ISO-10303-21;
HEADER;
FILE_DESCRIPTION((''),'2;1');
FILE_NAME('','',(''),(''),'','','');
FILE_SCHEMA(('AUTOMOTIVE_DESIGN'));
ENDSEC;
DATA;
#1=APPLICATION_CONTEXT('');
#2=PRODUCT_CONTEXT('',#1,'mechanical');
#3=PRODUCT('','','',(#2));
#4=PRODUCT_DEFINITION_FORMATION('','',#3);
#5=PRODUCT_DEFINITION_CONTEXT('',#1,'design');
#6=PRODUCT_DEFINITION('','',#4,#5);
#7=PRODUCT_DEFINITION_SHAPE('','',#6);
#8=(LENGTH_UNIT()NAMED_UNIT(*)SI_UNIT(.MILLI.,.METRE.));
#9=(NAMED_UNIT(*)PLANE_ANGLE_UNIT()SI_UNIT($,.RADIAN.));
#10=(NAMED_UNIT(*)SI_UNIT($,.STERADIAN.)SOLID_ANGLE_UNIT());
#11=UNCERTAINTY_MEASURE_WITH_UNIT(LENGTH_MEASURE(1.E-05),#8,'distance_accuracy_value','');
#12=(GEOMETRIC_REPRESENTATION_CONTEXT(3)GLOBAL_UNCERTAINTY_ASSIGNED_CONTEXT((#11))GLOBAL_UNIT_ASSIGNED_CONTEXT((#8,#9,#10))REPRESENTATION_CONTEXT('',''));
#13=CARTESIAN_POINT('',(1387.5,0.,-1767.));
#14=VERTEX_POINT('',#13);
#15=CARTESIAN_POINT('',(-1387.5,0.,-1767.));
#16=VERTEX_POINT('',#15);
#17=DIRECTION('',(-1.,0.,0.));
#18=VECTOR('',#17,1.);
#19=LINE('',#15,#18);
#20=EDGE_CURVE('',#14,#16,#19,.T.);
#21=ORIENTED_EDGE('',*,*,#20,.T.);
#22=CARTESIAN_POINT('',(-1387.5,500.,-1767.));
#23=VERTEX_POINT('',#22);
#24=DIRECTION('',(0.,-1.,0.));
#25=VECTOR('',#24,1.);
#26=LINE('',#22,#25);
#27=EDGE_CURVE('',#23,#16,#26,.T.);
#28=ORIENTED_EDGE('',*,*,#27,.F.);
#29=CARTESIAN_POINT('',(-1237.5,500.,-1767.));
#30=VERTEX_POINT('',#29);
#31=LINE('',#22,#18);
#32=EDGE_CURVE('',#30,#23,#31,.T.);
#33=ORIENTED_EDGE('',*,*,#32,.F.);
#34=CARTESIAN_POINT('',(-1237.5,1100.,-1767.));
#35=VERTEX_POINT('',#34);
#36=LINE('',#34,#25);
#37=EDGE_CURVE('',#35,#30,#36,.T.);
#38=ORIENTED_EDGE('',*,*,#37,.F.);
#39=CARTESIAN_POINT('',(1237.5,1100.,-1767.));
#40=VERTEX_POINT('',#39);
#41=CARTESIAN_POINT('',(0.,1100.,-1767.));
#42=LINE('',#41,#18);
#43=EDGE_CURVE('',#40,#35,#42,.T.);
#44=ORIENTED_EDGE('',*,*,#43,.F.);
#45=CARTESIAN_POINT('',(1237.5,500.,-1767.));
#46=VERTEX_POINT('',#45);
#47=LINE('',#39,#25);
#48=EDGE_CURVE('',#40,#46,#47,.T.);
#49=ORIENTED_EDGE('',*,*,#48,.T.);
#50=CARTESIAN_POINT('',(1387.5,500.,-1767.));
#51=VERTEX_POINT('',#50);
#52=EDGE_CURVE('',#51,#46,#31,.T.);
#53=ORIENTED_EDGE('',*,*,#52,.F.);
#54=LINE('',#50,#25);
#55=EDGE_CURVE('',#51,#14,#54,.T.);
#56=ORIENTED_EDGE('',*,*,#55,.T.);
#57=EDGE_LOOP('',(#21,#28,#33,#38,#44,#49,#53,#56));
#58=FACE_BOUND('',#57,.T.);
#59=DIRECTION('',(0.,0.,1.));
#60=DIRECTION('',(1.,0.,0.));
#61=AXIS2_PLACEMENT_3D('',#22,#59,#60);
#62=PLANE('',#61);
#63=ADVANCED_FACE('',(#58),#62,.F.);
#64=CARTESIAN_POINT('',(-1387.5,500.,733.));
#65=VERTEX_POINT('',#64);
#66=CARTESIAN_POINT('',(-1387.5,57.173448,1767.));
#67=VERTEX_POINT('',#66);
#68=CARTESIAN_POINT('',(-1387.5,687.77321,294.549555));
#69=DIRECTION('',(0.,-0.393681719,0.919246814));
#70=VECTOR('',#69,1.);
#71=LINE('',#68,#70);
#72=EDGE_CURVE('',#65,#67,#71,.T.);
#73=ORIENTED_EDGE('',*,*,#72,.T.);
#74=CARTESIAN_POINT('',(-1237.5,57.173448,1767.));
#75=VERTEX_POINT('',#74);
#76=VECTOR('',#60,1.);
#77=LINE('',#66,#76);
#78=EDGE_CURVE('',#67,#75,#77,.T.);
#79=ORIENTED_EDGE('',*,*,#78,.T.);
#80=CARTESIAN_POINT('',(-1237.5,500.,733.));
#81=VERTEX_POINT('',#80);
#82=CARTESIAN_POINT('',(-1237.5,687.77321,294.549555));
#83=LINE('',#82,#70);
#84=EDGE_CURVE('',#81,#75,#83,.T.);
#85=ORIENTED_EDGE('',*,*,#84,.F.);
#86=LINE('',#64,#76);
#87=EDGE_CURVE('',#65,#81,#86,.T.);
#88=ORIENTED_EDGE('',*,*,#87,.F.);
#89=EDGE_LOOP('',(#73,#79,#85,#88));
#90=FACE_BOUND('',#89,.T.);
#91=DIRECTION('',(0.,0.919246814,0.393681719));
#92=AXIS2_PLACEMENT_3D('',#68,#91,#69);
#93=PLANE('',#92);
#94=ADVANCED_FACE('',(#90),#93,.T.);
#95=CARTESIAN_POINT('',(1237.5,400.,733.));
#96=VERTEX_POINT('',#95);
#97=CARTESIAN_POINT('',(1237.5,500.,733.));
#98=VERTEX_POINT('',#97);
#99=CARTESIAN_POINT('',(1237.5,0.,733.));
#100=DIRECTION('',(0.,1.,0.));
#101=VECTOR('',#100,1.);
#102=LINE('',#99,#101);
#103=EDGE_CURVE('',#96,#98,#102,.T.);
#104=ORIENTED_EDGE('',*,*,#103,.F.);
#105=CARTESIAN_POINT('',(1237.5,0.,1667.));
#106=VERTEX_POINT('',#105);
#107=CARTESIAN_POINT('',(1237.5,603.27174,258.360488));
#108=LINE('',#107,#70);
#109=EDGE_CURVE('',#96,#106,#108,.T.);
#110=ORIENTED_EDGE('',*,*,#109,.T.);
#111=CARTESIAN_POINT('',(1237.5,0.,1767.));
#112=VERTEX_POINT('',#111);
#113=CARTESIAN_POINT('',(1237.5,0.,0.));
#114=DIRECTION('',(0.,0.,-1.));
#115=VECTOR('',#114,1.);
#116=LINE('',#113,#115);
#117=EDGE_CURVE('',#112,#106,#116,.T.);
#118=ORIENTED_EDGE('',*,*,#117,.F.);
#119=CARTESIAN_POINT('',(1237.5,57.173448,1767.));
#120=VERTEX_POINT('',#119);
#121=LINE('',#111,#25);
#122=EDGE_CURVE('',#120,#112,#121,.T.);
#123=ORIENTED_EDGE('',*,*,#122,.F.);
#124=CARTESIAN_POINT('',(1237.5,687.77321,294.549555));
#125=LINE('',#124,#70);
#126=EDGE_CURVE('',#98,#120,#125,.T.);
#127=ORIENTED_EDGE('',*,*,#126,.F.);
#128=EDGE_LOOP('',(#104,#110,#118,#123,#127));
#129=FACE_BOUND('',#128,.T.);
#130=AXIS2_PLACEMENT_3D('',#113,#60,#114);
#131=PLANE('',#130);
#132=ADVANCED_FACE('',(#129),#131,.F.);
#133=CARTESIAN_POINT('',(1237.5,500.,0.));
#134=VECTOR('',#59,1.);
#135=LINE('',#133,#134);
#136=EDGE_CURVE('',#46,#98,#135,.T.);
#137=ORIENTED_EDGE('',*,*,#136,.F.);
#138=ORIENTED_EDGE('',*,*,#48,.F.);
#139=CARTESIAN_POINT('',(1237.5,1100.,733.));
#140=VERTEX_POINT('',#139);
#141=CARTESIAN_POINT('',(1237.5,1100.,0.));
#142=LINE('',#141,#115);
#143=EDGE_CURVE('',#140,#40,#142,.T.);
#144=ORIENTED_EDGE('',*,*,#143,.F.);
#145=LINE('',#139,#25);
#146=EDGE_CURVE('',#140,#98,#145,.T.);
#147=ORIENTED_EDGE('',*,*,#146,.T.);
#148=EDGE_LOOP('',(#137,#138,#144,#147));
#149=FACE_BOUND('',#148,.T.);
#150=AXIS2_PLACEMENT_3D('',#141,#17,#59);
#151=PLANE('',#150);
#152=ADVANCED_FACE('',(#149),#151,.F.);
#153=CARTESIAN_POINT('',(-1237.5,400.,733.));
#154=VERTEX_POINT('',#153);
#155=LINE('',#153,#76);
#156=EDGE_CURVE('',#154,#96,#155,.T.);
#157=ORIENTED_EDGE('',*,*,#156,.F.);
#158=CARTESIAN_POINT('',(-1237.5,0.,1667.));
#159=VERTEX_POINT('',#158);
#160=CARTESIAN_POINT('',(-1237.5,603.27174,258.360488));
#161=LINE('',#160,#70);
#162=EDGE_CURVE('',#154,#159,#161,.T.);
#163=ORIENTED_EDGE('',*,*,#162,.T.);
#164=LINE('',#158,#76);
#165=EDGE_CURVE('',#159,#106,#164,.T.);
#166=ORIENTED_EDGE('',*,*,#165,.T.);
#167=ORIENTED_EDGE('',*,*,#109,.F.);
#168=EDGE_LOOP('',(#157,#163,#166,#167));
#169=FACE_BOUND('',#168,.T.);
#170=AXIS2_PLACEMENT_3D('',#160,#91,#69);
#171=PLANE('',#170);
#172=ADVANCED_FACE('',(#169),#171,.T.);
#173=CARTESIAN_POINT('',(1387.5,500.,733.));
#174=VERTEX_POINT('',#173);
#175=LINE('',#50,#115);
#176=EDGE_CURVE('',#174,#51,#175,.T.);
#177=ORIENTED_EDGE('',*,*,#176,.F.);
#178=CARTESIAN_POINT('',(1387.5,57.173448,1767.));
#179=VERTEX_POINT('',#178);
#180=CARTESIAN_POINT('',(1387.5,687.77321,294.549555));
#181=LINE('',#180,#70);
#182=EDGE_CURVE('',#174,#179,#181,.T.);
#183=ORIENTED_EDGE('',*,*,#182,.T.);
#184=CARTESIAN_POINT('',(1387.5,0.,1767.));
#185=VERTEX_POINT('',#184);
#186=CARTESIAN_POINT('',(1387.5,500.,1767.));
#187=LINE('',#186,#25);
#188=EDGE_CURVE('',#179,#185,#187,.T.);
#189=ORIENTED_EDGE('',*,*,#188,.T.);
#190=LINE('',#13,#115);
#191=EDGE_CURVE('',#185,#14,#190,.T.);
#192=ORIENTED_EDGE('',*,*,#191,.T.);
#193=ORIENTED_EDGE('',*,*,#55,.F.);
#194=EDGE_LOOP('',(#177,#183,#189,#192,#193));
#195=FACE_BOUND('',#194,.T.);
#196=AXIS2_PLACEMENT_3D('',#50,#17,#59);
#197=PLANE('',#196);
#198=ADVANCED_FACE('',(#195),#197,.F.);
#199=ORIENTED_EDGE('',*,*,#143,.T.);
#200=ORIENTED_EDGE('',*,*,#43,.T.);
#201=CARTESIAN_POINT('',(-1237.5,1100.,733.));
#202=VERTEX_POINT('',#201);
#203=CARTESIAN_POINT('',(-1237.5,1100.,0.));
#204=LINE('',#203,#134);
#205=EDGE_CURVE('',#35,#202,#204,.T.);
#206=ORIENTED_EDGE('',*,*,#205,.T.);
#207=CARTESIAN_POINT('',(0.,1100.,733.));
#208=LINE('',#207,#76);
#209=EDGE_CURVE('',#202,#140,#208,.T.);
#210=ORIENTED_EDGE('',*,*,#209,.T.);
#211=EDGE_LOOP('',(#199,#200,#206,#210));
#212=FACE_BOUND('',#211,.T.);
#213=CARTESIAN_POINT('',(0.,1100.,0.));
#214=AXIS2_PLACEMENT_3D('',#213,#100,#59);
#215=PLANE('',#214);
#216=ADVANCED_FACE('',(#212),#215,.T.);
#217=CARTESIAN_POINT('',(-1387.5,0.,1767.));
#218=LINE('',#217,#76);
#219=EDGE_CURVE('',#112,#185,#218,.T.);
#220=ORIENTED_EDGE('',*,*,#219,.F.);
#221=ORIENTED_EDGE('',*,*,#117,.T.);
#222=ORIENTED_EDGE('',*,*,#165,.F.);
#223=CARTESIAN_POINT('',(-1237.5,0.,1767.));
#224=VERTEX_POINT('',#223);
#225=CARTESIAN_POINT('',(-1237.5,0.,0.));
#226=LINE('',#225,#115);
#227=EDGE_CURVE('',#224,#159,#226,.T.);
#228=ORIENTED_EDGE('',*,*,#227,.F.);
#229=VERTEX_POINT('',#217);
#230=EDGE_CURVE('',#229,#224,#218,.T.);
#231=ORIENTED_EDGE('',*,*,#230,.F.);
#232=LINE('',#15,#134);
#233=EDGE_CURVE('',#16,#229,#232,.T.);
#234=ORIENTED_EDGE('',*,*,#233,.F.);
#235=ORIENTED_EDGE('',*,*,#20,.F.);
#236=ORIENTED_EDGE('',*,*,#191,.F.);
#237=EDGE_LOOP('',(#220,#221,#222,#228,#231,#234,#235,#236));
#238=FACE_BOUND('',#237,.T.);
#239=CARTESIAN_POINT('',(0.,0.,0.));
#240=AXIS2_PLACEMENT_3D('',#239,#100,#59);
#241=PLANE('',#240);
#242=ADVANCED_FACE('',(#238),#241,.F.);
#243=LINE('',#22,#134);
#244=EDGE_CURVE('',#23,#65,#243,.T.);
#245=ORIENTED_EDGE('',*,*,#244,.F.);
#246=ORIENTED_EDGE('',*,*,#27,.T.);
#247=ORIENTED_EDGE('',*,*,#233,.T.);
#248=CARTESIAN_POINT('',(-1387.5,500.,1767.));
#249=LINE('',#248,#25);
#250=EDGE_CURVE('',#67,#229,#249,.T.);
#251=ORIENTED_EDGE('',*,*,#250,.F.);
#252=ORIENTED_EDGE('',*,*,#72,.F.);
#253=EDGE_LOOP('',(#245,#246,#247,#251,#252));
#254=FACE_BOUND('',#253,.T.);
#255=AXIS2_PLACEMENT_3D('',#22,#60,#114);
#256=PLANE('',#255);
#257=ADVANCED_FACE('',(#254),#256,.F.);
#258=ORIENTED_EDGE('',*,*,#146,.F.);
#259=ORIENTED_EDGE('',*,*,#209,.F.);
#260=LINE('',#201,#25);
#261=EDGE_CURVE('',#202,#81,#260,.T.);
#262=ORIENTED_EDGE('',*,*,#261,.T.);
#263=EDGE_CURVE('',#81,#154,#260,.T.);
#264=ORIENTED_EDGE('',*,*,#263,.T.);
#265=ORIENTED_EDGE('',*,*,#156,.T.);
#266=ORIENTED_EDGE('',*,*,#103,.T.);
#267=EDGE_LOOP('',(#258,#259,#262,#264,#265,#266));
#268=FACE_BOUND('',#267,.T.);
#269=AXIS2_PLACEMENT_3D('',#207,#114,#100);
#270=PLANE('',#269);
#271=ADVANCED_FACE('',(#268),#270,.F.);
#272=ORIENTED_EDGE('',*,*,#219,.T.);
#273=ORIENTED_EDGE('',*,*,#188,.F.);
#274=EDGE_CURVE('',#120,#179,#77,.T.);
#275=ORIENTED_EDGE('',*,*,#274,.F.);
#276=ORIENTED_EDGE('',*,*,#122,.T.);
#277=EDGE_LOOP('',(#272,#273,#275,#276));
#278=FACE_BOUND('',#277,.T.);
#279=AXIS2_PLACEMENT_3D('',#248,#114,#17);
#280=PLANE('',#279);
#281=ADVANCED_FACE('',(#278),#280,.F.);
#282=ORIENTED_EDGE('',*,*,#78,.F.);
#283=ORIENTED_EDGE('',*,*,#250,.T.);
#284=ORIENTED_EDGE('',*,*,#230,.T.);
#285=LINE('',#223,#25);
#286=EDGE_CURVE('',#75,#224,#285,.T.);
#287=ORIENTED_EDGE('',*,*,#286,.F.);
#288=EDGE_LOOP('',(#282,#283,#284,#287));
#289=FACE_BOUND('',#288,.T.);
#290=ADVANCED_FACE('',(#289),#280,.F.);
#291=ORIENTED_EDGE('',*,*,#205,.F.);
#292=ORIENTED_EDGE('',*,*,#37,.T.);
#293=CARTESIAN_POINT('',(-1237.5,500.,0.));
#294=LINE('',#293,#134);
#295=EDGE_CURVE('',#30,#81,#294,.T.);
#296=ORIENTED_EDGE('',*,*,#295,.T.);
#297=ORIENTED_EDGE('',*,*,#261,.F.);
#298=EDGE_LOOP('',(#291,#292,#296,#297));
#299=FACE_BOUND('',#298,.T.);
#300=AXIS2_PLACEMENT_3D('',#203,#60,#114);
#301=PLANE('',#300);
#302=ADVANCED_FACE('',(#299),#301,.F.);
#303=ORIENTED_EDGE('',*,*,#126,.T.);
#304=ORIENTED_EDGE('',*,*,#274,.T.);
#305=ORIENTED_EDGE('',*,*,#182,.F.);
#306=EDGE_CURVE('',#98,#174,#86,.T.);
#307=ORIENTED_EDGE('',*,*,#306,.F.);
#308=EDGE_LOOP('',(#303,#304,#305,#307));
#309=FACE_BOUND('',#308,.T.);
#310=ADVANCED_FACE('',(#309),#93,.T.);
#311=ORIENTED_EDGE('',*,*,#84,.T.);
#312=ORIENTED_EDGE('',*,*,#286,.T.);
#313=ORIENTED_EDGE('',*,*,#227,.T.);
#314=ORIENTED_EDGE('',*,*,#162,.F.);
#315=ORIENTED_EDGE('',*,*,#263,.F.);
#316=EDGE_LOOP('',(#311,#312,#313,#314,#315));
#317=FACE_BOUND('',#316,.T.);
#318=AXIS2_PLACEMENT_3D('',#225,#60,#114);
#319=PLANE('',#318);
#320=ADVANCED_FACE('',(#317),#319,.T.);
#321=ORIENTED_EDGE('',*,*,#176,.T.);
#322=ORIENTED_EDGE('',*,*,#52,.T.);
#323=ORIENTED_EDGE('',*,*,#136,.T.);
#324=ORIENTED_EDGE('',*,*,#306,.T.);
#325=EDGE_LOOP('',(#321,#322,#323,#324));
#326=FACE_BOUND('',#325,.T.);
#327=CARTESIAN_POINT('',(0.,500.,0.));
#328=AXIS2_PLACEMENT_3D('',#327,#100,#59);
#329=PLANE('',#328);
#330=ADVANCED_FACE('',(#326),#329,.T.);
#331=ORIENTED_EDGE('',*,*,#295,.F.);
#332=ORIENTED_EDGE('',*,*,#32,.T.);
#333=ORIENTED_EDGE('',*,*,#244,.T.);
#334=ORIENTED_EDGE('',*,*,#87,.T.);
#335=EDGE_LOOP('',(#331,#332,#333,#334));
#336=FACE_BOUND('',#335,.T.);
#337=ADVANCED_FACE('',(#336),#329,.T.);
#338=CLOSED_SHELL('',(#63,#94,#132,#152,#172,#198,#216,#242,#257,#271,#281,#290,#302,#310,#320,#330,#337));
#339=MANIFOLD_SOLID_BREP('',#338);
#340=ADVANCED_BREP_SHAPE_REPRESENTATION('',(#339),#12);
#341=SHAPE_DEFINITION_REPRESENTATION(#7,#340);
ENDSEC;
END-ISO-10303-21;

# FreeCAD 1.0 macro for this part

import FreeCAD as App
import Part
import Sketcher
from FreeCAD import Vector

doc = App.newDocument("Part")
params = doc.addObject("Spreadsheet::Sheet", "Params")
for row, (alias, value) in enumerate([
    ("sketch1_width", "2775 mm"),
    ("sketch1_height", "3534 mm"),
    ("pad1_length", "500 mm"),
    ("sketch2_height", "1034 mm"),
    ("sketch3_width", "100 mm"),
    ("sketch3_height", "2500 mm"),
    ("pocket2_length", "2475 mm"),
    ("sketch4_width", "2475 mm"),
    ("sketch4_height", "2500 mm"),
    ("pad2_length", "1100 mm"),
], start=1):
    params.set(f"A{row}", alias)
    params.set(f"B{row}", "=" + value)
    params.setAlias(f"B{row}", alias)

body = doc.addObject("PartDesign::Body", "Body")

# Sketch on XZ plane
sketch1 = doc.addObject("Sketcher::SketchObject", "Sketch")
body.addObject(sketch1)
sketch1.AttachmentSupport = (doc.XZ_Plane, [""])
sketch1.MapMode = "FlatFace"
sketch1.addGeometry([
    Part.LineSegment(Vector(-1388, -1767, 0), Vector(-1388, 1767, 0)),
    Part.LineSegment(Vector(-1388, 1767, 0), Vector(1388, 1767, 0)),
    Part.LineSegment(Vector(1388, 1767, 0), Vector(1388, -1767, 0)),
    Part.LineSegment(Vector(1388, -1767, 0), Vector(-1388, -1767, 0)),
], False)
sketch1.addConstraint([
    Sketcher.Constraint("Coincident", 0, 2, 1, 1),
    Sketcher.Constraint("Coincident", 1, 2, 2, 1),
    Sketcher.Constraint("Coincident", 2, 2, 3, 1),
    Sketcher.Constraint("Coincident", 3, 2, 0, 1),
    Sketcher.Constraint("Vertical", 0),
    Sketcher.Constraint("Horizontal", 1),
    Sketcher.Constraint("Vertical", 2),
    Sketcher.Constraint("Horizontal", 3),
    Sketcher.Constraint("Symmetric", 0, 2, 2, 2, -1, 1),
    Sketcher.Constraint("DistanceX", 1, 1, 1, 2, 2775.0),
    Sketcher.Constraint("DistanceY", 0, 1, 0, 2, 3534.0),
])
sketch1.setExpression("Constraints[9]", "Params.sketch1_width")
sketch1.setExpression("Constraints[10]", "Params.sketch1_height")
pad1 = doc.addObject("PartDesign::Pad", "Pad")
body.addObject(pad1)
pad1.Profile = sketch1
pad1.setExpression("Length", "Params.pad1_length")
pad1.Reversed = True

# Sketch on YZ plane
sketch2 = doc.addObject("Sketcher::SketchObject", "Sketch001")
body.addObject(sketch2)
sketch2.AttachmentSupport = (doc.YZ_Plane, [""])
sketch2.MapMode = "FlatFace"
sketch2.AttachmentOffset = App.Placement(Vector(0, 0, 1387.5), App.Rotation())
sketch2.addGeometry([
    Part.LineSegment(Vector(57, 1767, 0), Vector(500, 733, 0)),
    Part.LineSegment(Vector(500, 733, 0), Vector(500, 1767, 0)),
    Part.LineSegment(Vector(500, 1767, 0), Vector(57, 1767, 0)),
], False)
sketch2.addConstraint([
    Sketcher.Constraint("Coincident", 0, 2, 1, 1),
    Sketcher.Constraint("Coincident", 1, 2, 2, 1),
    Sketcher.Constraint("Coincident", 2, 2, 0, 1),
    Sketcher.Constraint("Vertical", 1),
    Sketcher.Constraint("Horizontal", 2),
    Sketcher.Constraint("DistanceY", 1, 1, 1, 2, 1034.0),
    Sketcher.Constraint("DistanceX", -1, 1, 0, 2, 500.0),
    Sketcher.Constraint("DistanceY", -1, 1, 0, 2, 733.0),
    Sketcher.Constraint("DistanceX", 2, 2, 2, 1, 442.826552),
])
sketch2.setExpression("Constraints[5]", "Params.sketch2_height")
pocket1 = doc.addObject("PartDesign::Pocket", "Pocket")
body.addObject(pocket1)
pocket1.Profile = sketch2
pocket1.Type = "ThroughAll"

# Sketch on YZ plane
sketch3 = doc.addObject("Sketcher::SketchObject", "Sketch002")
body.addObject(sketch3)
sketch3.AttachmentSupport = (doc.YZ_Plane, [""])
sketch3.MapMode = "FlatFace"
sketch3.AttachmentOffset = App.Placement(Vector(0, 0, 1237.5), App.Rotation())
sketch3.addGeometry([
    Part.LineSegment(Vector(0, 1667, 0), Vector(400, 733, 0)),  # 0
    Part.LineSegment(Vector(400, 733, 0), Vector(400, -1767, 0)),  # 1
    Part.LineSegment(Vector(400, -1767, 0), Vector(500, -1767, 0)),  # 2
    Part.LineSegment(Vector(500, -1767, 0), Vector(500, 733, 0)),  # 3
    Part.LineSegment(Vector(500, 733, 0), Vector(57, 1767, 0)),  # 4
    Part.LineSegment(Vector(57, 1767, 0), Vector(0, 1767, 0)),  # 5
    Part.LineSegment(Vector(0, 1767, 0), Vector(0, 1667, 0)),  # 6
], False)
sketch3.addConstraint([
    Sketcher.Constraint("Coincident", 0, 2, 1, 1),
    Sketcher.Constraint("Coincident", 1, 2, 2, 1),
    Sketcher.Constraint("Coincident", 2, 2, 3, 1),
    Sketcher.Constraint("Coincident", 3, 2, 4, 1),
    Sketcher.Constraint("Coincident", 4, 2, 5, 1),
    Sketcher.Constraint("Coincident", 5, 2, 6, 1),
    Sketcher.Constraint("Coincident", 6, 2, 0, 1),
    Sketcher.Constraint("Vertical", 1),
    Sketcher.Constraint("Horizontal", 2),
    Sketcher.Constraint("Vertical", 3),
    Sketcher.Constraint("Horizontal", 5),
    Sketcher.Constraint("Vertical", 6),
    Sketcher.Constraint("PointOnObject", 5, 2, -2),
    Sketcher.Constraint("Parallel", 0, 4),
    Sketcher.Constraint("Horizontal", 0, 2, 3, 2),
    Sketcher.Constraint("Equal", 2, 6),
    Sketcher.Constraint("DistanceX", 2, 1, 2, 2, 100.0),
    Sketcher.Constraint("DistanceY", 1, 2, 1, 1, 2500.0),
    Sketcher.Constraint("DistanceX", -1, 1, 0, 2, 400.0),
    Sketcher.Constraint("DistanceY", -1, 1, 0, 2, 733.0),
    Sketcher.Constraint("DistanceY", -1, 1, 4, 2, 1767.0),
])
sketch3.setExpression("Constraints[16]", "Params.sketch3_width")
sketch3.setExpression("Constraints[17]", "Params.sketch3_height")
pocket2 = doc.addObject("PartDesign::Pocket", "Pocket001")
body.addObject(pocket2)
pocket2.Profile = sketch3
pocket2.setExpression("Length", "Params.pocket2_length")

# Sketch on XZ plane
sketch4 = doc.addObject("Sketcher::SketchObject", "Sketch003")
body.addObject(sketch4)
sketch4.AttachmentSupport = (doc.XZ_Plane, [""])
sketch4.MapMode = "FlatFace"
sketch4.addGeometry([
    Part.LineSegment(Vector(-1238, -1767, 0), Vector(-1238, 733, 0)),
    Part.LineSegment(Vector(-1238, 733, 0), Vector(1238, 733, 0)),
    Part.LineSegment(Vector(1238, 733, 0), Vector(1238, -1767, 0)),
    Part.LineSegment(Vector(1238, -1767, 0), Vector(-1238, -1767, 0)),
], False)
sketch4.addConstraint([
    Sketcher.Constraint("Coincident", 0, 2, 1, 1),
    Sketcher.Constraint("Coincident", 1, 2, 2, 1),
    Sketcher.Constraint("Coincident", 2, 2, 3, 1),
    Sketcher.Constraint("Coincident", 3, 2, 0, 1),
    Sketcher.Constraint("Vertical", 0),
    Sketcher.Constraint("Horizontal", 1),
    Sketcher.Constraint("Vertical", 2),
    Sketcher.Constraint("Horizontal", 3),
    Sketcher.Constraint("DistanceX", 1, 1, 1, 2, 2475.0),
    Sketcher.Constraint("DistanceY", 0, 1, 0, 2, 2500.0),
    Sketcher.Constraint("DistanceY", -1, 1, 0, 2, 733.0),
    Sketcher.Constraint("DistanceX", 0, 2, -1, 1, 1237.5),
])
sketch4.setExpression("Constraints[8]", "Params.sketch4_width")
sketch4.setExpression("Constraints[9]", "Params.sketch4_height")
pad2 = doc.addObject("PartDesign::Pad", "Pad001")
body.addObject(pad2)
pad2.Profile = sketch4
pad2.setExpression("Length", "Params.pad2_length")
pad2.Reversed = True

doc.recompute()
